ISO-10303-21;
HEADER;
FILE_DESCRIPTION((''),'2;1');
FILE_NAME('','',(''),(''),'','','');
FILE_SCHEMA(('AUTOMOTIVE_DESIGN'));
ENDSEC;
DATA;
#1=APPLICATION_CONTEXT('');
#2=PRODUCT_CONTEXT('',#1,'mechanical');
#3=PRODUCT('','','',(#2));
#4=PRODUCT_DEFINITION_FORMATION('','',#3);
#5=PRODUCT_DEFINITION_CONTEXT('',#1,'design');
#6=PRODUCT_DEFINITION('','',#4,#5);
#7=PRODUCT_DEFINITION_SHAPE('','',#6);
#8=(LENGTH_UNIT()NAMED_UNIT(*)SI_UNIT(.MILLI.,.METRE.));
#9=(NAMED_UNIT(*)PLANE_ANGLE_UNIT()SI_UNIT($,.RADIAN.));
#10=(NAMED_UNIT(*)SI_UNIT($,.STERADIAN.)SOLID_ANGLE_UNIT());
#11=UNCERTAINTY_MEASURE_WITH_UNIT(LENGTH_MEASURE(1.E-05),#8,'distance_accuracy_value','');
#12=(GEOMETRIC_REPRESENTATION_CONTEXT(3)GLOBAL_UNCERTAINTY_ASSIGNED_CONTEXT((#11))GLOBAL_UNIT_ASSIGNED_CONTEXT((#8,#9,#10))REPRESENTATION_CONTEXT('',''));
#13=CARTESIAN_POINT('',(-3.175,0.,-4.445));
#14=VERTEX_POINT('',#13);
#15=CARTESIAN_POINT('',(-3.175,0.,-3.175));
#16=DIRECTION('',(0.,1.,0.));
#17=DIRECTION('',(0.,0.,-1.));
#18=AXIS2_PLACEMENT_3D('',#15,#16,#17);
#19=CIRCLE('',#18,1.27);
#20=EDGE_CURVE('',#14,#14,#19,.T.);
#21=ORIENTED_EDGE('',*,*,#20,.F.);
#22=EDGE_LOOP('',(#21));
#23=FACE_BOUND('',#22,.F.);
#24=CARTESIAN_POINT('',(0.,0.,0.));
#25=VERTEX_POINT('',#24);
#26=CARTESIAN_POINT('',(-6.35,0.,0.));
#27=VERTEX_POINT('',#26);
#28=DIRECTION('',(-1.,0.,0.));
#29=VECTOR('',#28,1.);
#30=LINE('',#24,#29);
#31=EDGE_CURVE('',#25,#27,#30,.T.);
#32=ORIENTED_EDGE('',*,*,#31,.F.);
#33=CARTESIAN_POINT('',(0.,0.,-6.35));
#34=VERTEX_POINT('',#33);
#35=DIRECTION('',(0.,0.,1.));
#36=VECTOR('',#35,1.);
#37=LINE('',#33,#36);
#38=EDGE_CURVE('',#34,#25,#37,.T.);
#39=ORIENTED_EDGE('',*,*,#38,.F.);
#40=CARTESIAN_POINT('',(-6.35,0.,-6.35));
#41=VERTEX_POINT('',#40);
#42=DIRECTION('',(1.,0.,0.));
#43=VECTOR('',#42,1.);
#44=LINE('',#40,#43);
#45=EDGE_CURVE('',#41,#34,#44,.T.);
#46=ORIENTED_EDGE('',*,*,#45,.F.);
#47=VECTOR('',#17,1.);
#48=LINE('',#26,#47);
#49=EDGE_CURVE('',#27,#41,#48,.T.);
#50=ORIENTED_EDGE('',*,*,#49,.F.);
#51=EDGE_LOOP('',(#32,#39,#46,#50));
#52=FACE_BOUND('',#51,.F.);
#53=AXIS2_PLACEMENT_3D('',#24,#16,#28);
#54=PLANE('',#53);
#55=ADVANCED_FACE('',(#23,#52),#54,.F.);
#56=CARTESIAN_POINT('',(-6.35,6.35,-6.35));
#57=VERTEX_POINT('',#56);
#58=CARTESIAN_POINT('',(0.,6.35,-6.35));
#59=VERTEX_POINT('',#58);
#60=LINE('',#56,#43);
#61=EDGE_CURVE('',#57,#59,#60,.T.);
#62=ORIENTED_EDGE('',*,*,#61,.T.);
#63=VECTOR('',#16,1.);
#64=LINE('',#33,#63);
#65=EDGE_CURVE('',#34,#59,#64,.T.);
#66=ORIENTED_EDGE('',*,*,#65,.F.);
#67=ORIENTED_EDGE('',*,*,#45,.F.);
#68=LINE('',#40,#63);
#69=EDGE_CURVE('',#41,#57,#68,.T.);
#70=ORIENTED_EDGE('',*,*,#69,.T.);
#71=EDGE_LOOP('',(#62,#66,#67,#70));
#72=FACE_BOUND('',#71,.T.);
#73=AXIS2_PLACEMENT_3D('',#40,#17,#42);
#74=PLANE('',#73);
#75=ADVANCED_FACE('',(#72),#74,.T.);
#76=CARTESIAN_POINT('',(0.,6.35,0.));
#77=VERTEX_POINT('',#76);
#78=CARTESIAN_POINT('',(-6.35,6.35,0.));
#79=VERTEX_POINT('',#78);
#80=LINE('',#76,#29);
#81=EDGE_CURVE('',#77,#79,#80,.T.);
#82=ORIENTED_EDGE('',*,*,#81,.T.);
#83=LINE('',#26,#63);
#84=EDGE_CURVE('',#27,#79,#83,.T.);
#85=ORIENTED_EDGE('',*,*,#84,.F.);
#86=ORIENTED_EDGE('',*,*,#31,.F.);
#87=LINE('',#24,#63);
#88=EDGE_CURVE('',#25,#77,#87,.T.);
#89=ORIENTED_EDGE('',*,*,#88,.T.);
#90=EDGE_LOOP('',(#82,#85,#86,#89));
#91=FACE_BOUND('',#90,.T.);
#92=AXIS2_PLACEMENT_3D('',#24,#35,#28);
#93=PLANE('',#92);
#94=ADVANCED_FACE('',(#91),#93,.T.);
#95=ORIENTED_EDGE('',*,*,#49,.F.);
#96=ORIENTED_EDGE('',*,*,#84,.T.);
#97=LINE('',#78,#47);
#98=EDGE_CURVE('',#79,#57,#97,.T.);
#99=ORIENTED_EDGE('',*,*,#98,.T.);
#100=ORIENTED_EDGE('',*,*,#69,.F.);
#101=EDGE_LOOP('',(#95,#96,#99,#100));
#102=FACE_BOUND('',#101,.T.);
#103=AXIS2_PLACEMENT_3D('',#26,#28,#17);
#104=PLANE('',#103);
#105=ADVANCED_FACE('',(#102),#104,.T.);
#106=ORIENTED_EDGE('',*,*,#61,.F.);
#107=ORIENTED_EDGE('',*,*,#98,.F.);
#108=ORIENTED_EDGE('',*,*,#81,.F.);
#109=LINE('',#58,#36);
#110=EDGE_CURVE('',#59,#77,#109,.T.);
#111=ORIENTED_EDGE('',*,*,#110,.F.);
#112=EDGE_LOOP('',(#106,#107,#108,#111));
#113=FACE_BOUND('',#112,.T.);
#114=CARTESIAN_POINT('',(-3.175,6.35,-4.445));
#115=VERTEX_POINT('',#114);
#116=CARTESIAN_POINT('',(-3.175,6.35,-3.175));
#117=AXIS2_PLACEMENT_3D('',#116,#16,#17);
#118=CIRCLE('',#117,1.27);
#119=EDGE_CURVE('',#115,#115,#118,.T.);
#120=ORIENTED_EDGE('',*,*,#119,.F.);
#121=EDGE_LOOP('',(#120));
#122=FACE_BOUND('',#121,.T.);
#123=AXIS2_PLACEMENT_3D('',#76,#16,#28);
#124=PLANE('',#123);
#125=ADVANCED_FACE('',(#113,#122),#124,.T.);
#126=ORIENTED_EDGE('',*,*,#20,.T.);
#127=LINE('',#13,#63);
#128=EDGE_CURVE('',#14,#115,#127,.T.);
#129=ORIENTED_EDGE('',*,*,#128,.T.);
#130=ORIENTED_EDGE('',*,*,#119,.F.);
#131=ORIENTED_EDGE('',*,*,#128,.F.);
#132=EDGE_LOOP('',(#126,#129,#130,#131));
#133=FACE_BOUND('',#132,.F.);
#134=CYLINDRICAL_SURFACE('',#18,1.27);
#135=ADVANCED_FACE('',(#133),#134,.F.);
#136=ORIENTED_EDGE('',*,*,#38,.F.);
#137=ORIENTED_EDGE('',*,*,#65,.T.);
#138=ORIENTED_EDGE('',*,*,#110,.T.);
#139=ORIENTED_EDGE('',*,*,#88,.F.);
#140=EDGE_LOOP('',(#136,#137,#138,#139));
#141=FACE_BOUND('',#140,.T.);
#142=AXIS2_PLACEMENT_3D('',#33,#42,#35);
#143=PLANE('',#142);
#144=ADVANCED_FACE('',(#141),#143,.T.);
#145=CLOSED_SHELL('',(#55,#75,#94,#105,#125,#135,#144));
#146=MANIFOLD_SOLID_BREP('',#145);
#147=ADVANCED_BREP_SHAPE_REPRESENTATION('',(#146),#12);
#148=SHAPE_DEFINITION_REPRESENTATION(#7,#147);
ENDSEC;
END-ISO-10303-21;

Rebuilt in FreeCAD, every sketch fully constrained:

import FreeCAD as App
import Part
import Sketcher
from FreeCAD import Vector
Q = App.Units.Quantity


def add_polygon(sketch, points):
    """Adds a closed chain of lines whose ends are joined by coincident constraints."""
    first, n = sketch.GeometryCount, len(points)
    for a, b in zip(points, points[1:] + points[:1]):
        sketch.addGeometry(Part.LineSegment(App.Vector(*a, 0), App.Vector(*b, 0)), False)
    for i in range(n):
        sketch.addConstraint(Sketcher.Constraint("Coincident", first + i, 2, first + (i + 1) % n, 1))

doc = App.newDocument("Part")
body = doc.addObject("PartDesign::Body", "Body")

# Sketch on XZ plane
sketch1 = body.newObject("Sketcher::SketchObject", "Sketch")
sketch1.AttachmentSupport = (doc.getObject("XZ_Plane"), [""])
sketch1.MapMode = "FlatFace"
add_polygon(sketch1, [(-6, 0), (0, 0), (0, -6), (-6, -6)])  # lines 0-3
sketch1.addConstraint([
    Sketcher.Constraint("Horizontal", 0),
    Sketcher.Constraint("Vertical", 1),
    Sketcher.Constraint("Horizontal", 2),
    Sketcher.Constraint("Vertical", 3),
    Sketcher.Constraint("Coincident", 0, 2, -1, 1),
    Sketcher.Constraint("Equal", 2, 1),
    Sketcher.Constraint("DistanceX", 0, 1, 0, 2, Q("0.25 in")),
])
pad1 = body.newObject("PartDesign::Pad", "Pad")
pad1.Profile = sketch1
pad1.Length = Q("0.25 in")
pad1.Reversed = True

# Sketch on XZ plane
sketch2 = body.newObject("Sketcher::SketchObject", "Sketch001")
sketch2.AttachmentSupport = (doc.getObject("XZ_Plane"), [""])
sketch2.MapMode = "FlatFace"
sketch2.addGeometry(Part.Circle(Vector(-3.2, -3.2, 0), Vector(0, 0, 1), 1.3), False)
sketch2.addConstraint([
    Sketcher.Constraint("Diameter", 0, Q("0.1 in")),
    Sketcher.Constraint("DistanceX", 0, 3, -1, 1, Q("0.125 in")),
    Sketcher.Constraint("DistanceY", 0, 3, -1, 1, Q("0.125 in")),
])
doc.recompute()
hole = body.newObject("PartDesign::Hole", "Hole")
hole.Profile = sketch2
hole.ThreadType = "None"
hole.Diameter = Q("0.1 in")
hole.DepthType = "ThroughAll"

doc.recompute()
